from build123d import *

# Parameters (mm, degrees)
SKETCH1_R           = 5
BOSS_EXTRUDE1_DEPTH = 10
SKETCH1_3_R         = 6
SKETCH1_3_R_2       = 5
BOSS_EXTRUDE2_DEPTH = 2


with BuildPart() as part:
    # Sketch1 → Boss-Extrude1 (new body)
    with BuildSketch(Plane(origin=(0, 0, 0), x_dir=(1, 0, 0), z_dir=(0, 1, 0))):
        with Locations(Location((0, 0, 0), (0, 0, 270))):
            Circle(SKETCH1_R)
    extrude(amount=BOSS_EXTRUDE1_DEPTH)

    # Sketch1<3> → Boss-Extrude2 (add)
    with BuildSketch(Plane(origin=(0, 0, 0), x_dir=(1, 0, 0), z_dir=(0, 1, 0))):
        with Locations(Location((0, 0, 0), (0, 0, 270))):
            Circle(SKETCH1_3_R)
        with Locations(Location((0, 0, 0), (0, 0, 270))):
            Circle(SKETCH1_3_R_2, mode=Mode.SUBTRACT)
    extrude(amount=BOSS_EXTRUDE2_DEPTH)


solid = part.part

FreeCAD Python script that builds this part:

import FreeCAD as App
import Part
import Sketcher

V = App.Vector
Q = App.Units.Quantity

doc = App.newDocument("Part")
body = doc.addObject("PartDesign::Body", "Body")

# Sketch on XZ plane
sketch1 = body.newObject("Sketcher::SketchObject", "Sketch")
sketch1.AttachmentSupport = (doc.getObject("XZ_Plane"), [""])
sketch1.MapMode = "FlatFace"
sketch1.addGeometry(Part.Circle(V(0, 0, 0), V(0, 0, 1), 5), False)
sketch1.addConstraint([
    Sketcher.Constraint("Coincident", 0, 3, -1, 1),
    Sketcher.Constraint("Diameter", 0, Q("10 mm")),
])
pad1 = body.newObject("PartDesign::Pad", "Pad")
pad1.Profile = sketch1
pad1.Length = 10
pad1.Reversed = True

# Sketch on XZ plane
sketch2 = body.newObject("Sketcher::SketchObject", "Sketch001")
sketch2.AttachmentSupport = (doc.getObject("XZ_Plane"), [""])
sketch2.MapMode = "FlatFace"
sketch2.addGeometry([
    Part.Circle(V(0, 0, 0), V(0, 0, 1), 6),
    Part.Circle(V(0, 0, 0), V(0, 0, 1), 5),
], False)
sketch2.addConstraint([
    Sketcher.Constraint("Coincident", 0, 3, -1, 1),
    Sketcher.Constraint("Coincident", 1, 3, -1, 1),
    Sketcher.Constraint("Diameter", 0, Q("12 mm")),
    Sketcher.Constraint("Diameter", 1, Q("10 mm")),
])
pad2 = body.newObject("PartDesign::Pad", "Pad001")
pad2.Profile = sketch2
pad2.Length = 2
pad2.Reversed = True

doc.recompute()
